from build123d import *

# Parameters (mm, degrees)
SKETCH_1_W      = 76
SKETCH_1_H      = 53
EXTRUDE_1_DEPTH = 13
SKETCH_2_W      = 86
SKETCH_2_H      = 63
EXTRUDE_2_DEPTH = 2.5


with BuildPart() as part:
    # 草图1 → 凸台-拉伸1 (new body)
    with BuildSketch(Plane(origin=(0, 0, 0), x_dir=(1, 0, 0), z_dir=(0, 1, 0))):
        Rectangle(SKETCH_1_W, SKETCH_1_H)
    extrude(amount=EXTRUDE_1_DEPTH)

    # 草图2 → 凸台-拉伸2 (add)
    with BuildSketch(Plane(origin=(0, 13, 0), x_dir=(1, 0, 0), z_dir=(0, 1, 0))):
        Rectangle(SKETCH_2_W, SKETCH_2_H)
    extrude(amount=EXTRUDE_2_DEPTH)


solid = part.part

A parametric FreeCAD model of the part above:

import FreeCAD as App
import Part
import Sketcher
Q = App.Units.Quantity

doc = App.newDocument("Part")
body = doc.addObject("PartDesign::Body", "Body")

sketch1 = doc.addObject("Sketcher::SketchObject", "Sketch")
body.addObject(sketch1)
sketch1.AttachmentSupport = (doc.XZ_Plane, [""])
sketch1.MapMode = "FlatFace"
sketch1.addGeometry([
    Part.LineSegment(App.Vector(-38, -26.5, 0), App.Vector(-38, 26.5, 0)),
    Part.LineSegment(App.Vector(-38, 26.5, 0), App.Vector(38, 26.5, 0)),
    Part.LineSegment(App.Vector(38, 26.5, 0), App.Vector(38, -26.5, 0)),
    Part.LineSegment(App.Vector(38, -26.5, 0), App.Vector(-38, -26.5, 0)),
], False)
sketch1.addConstraint([
    Sketcher.Constraint("Coincident", 0, 2, 1, 1),
    Sketcher.Constraint("Coincident", 1, 2, 2, 1),
    Sketcher.Constraint("Coincident", 2, 2, 3, 1),
    Sketcher.Constraint("Coincident", 3, 2, 0, 1),
    Sketcher.Constraint("Vertical", 0),
    Sketcher.Constraint("Horizontal", 1),
    Sketcher.Constraint("Vertical", 2),
    Sketcher.Constraint("Horizontal", 3),
    Sketcher.Constraint("Symmetric", 0, 2, 2, 2, -1, 1),
    Sketcher.Constraint("DistanceX", 1, 1, 1, 2, Q("76 mm")),
    Sketcher.Constraint("DistanceY", 0, 1, 0, 2, Q("53 mm")),
])
pad1 = doc.addObject("PartDesign::Pad", "Pad")
body.addObject(pad1)
pad1.Profile = sketch1
pad1.Length = 13
pad1.Reversed = True

sketch2 = doc.addObject("Sketcher::SketchObject", "Sketch001")
body.addObject(sketch2)
sketch2.AttachmentSupport = (doc.XZ_Plane, [""])
sketch2.MapMode = "FlatFace"
sketch2.AttachmentOffset = App.Placement(App.Vector(0, 0, -13), App.Rotation())
sketch2.addGeometry([
    Part.LineSegment(App.Vector(-43, -31.5, 0), App.Vector(-43, 31.5, 0)),
    Part.LineSegment(App.Vector(-43, 31.5, 0), App.Vector(43, 31.5, 0)),
    Part.LineSegment(App.Vector(43, 31.5, 0), App.Vector(43, -31.5, 0)),
    Part.LineSegment(App.Vector(43, -31.5, 0), App.Vector(-43, -31.5, 0)),
], False)
sketch2.addConstraint([
    Sketcher.Constraint("Coincident", 0, 2, 1, 1),
    Sketcher.Constraint("Coincident", 1, 2, 2, 1),
    Sketcher.Constraint("Coincident", 2, 2, 3, 1),
    Sketcher.Constraint("Coincident", 3, 2, 0, 1),
    Sketcher.Constraint("Vertical", 0),
    Sketcher.Constraint("Horizontal", 1),
    Sketcher.Constraint("Vertical", 2),
    Sketcher.Constraint("Horizontal", 3),
    Sketcher.Constraint("Symmetric", 0, 2, 2, 2, -1, 1),
    Sketcher.Constraint("DistanceX", 1, 1, 1, 2, Q("86 mm")),
    Sketcher.Constraint("DistanceY", 0, 1, 0, 2, Q("63 mm")),
])
pad2 = doc.addObject("PartDesign::Pad", "Pad001")
body.addObject(pad2)
pad2.Profile = sketch2
pad2.Length = 2.5
pad2.Reversed = True

doc.recompute()
